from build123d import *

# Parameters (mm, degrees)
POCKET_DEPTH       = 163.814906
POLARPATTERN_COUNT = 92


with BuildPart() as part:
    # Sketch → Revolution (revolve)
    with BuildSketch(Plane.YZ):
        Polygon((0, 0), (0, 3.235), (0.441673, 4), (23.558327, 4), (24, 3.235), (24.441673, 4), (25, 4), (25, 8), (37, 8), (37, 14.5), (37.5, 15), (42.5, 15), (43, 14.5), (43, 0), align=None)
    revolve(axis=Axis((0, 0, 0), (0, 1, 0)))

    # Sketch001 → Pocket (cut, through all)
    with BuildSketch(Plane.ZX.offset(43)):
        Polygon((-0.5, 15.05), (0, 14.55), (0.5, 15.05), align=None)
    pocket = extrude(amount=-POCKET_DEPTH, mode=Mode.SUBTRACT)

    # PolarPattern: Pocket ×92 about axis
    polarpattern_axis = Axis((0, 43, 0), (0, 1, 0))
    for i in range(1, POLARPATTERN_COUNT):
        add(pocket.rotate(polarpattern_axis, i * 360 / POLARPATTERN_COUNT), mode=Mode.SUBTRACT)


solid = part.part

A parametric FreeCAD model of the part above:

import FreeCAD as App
import Part
import Sketcher

V = App.Vector
Q = App.Units.Quantity

doc = App.newDocument("Part")
body = doc.addObject("PartDesign::Body", "Body")

sketch1 = body.newObject("Sketcher::SketchObject", "Sketch")
sketch1.AttachmentSupport = (doc.getObject("YZ_Plane"), [""])
sketch1.MapMode = "FlatFace"
sketch1.addGeometry([
    Part.LineSegment(V(0, 3.2, 0), V(0, 0, 0)),
    Part.LineSegment(V(0, 0, 0), V(43, 0, 0)),
    Part.LineSegment(V(43, 0, 0), V(43, 14.5, 0)),
    Part.LineSegment(V(43, 14.5, 0), V(42.5, 15, 0)),
    Part.LineSegment(V(42.5, 15, 0), V(37.5, 15, 0)),
    Part.LineSegment(V(37.5, 15, 0), V(37, 14.5, 0)),
    Part.LineSegment(V(37, 14.5, 0), V(37, 8, 0)),
    Part.LineSegment(V(37, 8, 0), V(25, 8, 0)),
    Part.LineSegment(V(25, 8, 0), V(25, 4, 0)),
    Part.LineSegment(V(25, 4, 0), V(24.4, 4, 0)),
    Part.LineSegment(V(24.4, 4, 0), V(24, 3.2, 0)),
    Part.LineSegment(V(24, 3.2, 0), V(23.6, 4, 0)),
    Part.LineSegment(V(23.6, 4, 0), V(0.4, 4, 0)),
    Part.LineSegment(V(0.4, 4, 0), V(0, 3.2, 0)),
], False)
sketch1.addConstraint([
    Sketcher.Constraint("Coincident", 0, 2, 1, 1),
    Sketcher.Constraint("Coincident", 1, 2, 2, 1),
    Sketcher.Constraint("Coincident", 2, 2, 3, 1),
    Sketcher.Constraint("Coincident", 3, 2, 4, 1),
    Sketcher.Constraint("Coincident", 4, 2, 5, 1),
    Sketcher.Constraint("Coincident", 5, 2, 6, 1),
    Sketcher.Constraint("Coincident", 6, 2, 7, 1),
    Sketcher.Constraint("Coincident", 7, 2, 8, 1),
    Sketcher.Constraint("Coincident", 8, 2, 9, 1),
    Sketcher.Constraint("Coincident", 9, 2, 10, 1),
    Sketcher.Constraint("Coincident", 10, 2, 11, 1),
    Sketcher.Constraint("Coincident", 11, 2, 12, 1),
    Sketcher.Constraint("Coincident", 12, 2, 13, 1),
    Sketcher.Constraint("Coincident", 13, 2, 0, 1),
    Sketcher.Constraint("Vertical", 0),
    Sketcher.Constraint("Horizontal", 1),
    Sketcher.Constraint("Vertical", 2),
    Sketcher.Constraint("Horizontal", 4),
    Sketcher.Constraint("Vertical", 6),
    Sketcher.Constraint("Horizontal", 7),
    Sketcher.Constraint("Vertical", 8),
    Sketcher.Constraint("Horizontal", 9),
    Sketcher.Constraint("Horizontal", 12),
    Sketcher.Constraint("Coincident", 0, 2, -1, 1),
    Sketcher.Constraint("Perpendicular", 3, 5),
    Sketcher.Constraint("Parallel", 10, 13),
    Sketcher.Constraint("Horizontal", 2, 2, 5, 2),
    Sketcher.Constraint("Horizontal", 9, 2, 11, 2),
    Sketcher.Constraint("Horizontal", 10, 2, 13, 2),
    Sketcher.Constraint("Equal", 3, 5),
    Sketcher.Constraint("Equal", 10, 11),
    Sketcher.Constraint("DistanceX", 1, 1, 1, 2, 43.0),
    Sketcher.Constraint("DistanceX", 4, 2, 4, 1, 5.0),
    Sketcher.Constraint("DistanceX", 7, 2, 7, 1, 12.0),
    Sketcher.Constraint("DistanceY", 8, 2, 8, 1, 4.0),
    Sketcher.Constraint("Angle", 10, Q("-120.000002 deg")),
    Sketcher.Constraint("DistanceY", 2, 1, 2, 2, 14.5),
    Sketcher.Constraint("DistanceY", 6, 2, 6, 1, 6.5),
    Sketcher.Constraint("DistanceY", -1, 1, 3, 2, 15.0),
    Sketcher.Constraint("DistanceX", -1, 1, 10, 2, 24.0),
    Sketcher.Constraint("DistanceY", 0, 2, 0, 1, 3.235),
])
revolution = body.newObject("PartDesign::Revolution", "Revolution")
revolution.Profile = sketch1
revolution.ReferenceAxis = (sketch1, ["H_Axis"])
revolution.Angle = 360

sketch2 = body.newObject("Sketcher::SketchObject", "Sketch001")
sketch2.AttachmentSupport = (doc.getObject("XZ_Plane"), [""])
sketch2.MapMode = "FlatFace"
sketch2.AttachmentOffset = App.Placement(V(0, 0, -43), App.Rotation())
sketch2.addGeometry([
    Part.LineSegment(V(15.1, -0.5, 0), V(14.6, 0, 0)),
    Part.LineSegment(V(14.6, 0, 0), V(15.1, 0.5, 0)),
    Part.LineSegment(V(15.1, 0.5, 0), V(15.1, -0.5, 0)),
], False)
sketch2.addConstraint([
    Sketcher.Constraint("Coincident", 0, 2, 1, 1),
    Sketcher.Constraint("Coincident", 1, 2, 2, 1),
    Sketcher.Constraint("Coincident", 2, 2, 0, 1),
    Sketcher.Constraint("Vertical", 2),
    Sketcher.Constraint("PointOnObject", 0, 2, -1),
    Sketcher.Constraint("Perpendicular", 0, 1),
    Sketcher.Constraint("Equal", 0, 1),
    Sketcher.Constraint("DistanceY", 2, 2, 2, 1, 1.0),
    Sketcher.Constraint("DistanceX", -1, 1, 0, 2, 14.55),
])
pocket1 = body.newObject("PartDesign::Pocket", "Pocket")
pocket1.Profile = sketch2
pocket1.Type = "ThroughAll"
pocket1.Reversed = True
doc.recompute()

polarpattern = body.newObject("PartDesign::PolarPattern", "PolarPattern")
polarpattern.Originals = [pocket1]
polarpattern.Axis = (doc.getObject("Y_Axis"), [""])
polarpattern.Angle = 360
polarpattern.Occurrences = 92
body.Tip = polarpattern

doc.recompute()
